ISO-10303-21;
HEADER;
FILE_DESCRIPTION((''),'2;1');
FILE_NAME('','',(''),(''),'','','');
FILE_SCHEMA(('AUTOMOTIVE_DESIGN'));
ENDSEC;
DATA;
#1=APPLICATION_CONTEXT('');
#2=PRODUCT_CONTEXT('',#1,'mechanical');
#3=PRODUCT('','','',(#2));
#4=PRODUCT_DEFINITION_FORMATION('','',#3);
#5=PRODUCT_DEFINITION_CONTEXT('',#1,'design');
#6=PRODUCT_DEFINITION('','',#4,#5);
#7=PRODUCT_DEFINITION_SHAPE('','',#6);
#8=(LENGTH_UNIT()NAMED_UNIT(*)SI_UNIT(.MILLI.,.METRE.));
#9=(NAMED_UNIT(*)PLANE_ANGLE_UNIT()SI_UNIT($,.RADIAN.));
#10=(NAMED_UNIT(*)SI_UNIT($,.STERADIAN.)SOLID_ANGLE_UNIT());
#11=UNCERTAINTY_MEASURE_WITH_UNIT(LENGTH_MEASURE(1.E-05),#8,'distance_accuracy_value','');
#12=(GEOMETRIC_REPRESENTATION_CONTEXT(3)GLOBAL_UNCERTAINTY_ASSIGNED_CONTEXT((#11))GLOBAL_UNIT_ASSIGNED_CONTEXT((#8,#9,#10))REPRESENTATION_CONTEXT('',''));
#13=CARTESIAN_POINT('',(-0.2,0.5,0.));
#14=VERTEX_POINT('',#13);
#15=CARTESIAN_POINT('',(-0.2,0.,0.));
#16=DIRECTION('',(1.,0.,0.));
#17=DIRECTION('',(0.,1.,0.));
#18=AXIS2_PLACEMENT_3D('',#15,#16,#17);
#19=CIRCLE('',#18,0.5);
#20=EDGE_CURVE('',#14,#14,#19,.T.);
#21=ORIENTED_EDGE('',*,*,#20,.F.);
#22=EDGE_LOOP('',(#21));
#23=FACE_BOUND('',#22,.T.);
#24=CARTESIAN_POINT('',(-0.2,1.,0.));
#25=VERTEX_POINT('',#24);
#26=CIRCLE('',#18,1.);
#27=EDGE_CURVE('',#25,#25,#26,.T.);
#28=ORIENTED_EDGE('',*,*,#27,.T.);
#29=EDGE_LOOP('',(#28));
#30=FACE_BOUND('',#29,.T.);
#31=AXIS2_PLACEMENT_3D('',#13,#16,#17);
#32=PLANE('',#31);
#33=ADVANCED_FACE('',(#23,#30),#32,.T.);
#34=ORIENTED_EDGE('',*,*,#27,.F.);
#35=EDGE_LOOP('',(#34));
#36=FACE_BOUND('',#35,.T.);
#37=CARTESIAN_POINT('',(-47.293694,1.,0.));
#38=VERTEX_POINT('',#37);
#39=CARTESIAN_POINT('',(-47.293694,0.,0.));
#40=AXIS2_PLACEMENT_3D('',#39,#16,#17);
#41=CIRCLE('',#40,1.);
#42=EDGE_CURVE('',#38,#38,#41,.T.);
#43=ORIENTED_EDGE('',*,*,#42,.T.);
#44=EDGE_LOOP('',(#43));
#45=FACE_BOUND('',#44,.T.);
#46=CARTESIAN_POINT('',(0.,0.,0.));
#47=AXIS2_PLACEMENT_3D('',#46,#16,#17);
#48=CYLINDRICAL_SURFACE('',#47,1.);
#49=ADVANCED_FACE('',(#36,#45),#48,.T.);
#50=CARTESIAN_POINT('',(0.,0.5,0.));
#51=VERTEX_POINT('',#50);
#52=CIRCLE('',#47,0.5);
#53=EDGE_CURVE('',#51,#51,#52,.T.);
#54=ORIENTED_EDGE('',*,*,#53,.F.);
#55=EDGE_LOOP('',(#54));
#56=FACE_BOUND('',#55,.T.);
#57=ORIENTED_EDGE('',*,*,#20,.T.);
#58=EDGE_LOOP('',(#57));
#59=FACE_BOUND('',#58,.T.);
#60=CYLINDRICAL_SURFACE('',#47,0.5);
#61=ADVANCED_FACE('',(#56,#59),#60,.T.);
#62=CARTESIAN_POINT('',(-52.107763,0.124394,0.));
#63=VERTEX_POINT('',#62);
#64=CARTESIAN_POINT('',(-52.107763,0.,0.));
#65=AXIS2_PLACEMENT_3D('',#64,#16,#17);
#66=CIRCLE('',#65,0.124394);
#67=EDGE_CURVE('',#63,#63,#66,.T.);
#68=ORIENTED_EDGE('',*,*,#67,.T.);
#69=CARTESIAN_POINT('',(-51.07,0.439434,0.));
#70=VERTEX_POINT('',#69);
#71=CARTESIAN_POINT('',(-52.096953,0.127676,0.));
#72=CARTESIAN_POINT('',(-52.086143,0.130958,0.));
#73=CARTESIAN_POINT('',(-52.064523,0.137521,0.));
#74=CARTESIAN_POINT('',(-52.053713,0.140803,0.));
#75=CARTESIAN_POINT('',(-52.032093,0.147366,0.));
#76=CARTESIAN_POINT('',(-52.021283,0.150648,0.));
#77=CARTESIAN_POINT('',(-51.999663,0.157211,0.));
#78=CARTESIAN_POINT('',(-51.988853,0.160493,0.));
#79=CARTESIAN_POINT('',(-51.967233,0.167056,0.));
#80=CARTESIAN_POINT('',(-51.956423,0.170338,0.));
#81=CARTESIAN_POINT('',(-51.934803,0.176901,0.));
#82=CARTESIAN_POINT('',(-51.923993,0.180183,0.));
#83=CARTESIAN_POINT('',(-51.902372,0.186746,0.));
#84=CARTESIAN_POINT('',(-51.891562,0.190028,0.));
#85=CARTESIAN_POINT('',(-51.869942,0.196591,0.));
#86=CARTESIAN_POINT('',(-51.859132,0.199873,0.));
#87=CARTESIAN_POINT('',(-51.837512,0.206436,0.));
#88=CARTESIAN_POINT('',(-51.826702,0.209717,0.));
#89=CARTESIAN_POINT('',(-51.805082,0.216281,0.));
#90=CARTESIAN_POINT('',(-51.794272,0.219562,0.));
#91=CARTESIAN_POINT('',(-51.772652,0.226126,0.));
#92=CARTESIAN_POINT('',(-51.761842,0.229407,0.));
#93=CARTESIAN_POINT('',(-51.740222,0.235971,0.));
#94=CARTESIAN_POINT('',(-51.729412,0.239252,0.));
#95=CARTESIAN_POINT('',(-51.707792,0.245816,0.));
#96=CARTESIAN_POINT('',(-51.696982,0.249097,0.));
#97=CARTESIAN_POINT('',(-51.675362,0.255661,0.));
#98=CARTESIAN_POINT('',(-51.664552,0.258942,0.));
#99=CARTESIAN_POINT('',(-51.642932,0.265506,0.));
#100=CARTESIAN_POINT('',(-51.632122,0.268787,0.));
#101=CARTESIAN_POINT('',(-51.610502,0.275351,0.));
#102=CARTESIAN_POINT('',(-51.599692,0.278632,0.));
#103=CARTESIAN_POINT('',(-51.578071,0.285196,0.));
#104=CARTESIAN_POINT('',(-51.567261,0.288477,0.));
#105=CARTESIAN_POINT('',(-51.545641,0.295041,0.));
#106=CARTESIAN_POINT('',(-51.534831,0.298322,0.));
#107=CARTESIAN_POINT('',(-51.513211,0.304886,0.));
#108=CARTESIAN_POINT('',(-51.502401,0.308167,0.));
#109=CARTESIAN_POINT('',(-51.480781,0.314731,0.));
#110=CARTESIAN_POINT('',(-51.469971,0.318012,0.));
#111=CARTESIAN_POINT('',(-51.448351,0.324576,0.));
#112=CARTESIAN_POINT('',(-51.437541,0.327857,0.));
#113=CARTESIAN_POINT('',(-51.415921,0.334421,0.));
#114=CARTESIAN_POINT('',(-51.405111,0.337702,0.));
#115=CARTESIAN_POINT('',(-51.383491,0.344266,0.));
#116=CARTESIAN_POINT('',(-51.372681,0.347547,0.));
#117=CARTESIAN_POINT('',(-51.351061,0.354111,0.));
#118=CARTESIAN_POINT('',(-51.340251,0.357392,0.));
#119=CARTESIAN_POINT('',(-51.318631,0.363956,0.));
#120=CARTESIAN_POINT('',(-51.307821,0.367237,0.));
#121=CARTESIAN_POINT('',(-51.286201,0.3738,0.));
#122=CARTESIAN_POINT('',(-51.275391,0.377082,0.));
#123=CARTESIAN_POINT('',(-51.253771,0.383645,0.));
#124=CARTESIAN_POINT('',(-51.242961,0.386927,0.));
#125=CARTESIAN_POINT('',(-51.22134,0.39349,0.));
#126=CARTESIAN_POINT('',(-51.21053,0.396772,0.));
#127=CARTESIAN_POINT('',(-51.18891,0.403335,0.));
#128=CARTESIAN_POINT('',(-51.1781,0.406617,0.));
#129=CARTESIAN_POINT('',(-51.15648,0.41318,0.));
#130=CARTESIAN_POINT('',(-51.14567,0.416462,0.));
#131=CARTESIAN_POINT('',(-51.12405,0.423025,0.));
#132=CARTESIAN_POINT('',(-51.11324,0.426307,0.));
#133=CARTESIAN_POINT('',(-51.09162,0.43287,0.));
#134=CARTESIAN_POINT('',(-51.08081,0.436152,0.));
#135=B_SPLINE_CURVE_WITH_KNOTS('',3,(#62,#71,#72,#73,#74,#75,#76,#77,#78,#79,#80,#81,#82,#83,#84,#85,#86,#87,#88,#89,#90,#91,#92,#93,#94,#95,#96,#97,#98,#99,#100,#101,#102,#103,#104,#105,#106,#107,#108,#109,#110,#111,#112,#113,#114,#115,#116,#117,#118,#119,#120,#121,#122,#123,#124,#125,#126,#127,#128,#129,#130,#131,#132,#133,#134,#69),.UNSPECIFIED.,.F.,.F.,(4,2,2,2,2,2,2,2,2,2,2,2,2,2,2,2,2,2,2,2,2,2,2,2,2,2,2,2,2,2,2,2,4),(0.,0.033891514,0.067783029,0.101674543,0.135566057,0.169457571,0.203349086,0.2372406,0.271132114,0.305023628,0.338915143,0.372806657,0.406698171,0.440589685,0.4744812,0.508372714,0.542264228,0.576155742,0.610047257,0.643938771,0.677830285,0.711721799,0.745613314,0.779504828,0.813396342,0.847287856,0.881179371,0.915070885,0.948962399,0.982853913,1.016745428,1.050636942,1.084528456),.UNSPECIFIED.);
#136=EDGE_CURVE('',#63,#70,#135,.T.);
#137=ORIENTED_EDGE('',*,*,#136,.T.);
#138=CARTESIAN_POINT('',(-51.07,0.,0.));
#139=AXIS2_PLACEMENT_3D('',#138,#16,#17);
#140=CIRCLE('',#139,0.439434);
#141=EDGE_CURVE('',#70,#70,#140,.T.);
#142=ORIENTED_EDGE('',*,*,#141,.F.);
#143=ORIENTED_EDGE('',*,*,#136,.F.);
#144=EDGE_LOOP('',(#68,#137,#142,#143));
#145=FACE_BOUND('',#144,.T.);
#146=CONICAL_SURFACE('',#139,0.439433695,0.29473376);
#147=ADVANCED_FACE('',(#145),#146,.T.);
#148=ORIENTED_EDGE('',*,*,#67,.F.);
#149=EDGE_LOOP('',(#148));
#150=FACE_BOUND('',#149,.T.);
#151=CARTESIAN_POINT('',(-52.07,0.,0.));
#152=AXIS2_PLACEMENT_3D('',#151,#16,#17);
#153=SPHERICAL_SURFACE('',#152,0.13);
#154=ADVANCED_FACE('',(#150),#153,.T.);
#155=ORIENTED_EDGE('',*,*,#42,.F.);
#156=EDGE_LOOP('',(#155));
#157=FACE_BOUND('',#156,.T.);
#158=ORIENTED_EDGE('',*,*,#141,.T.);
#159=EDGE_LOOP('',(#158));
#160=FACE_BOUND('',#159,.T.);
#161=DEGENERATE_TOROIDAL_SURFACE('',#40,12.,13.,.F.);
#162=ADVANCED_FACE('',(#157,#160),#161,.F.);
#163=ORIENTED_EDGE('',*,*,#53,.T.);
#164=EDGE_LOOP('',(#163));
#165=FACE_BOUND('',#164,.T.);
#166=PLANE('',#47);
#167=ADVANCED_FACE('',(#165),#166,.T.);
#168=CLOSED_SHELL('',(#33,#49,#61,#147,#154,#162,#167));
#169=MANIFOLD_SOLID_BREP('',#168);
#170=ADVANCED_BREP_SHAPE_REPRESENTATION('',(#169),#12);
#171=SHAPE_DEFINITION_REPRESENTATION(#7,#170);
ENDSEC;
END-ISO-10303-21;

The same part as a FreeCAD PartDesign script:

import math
import FreeCAD as App
import Part
import Sketcher
from FreeCAD import Vector
Q = App.Units.Quantity

doc = App.newDocument("Part")
body = doc.addObject("PartDesign::Body", "Body")

# Sketch on XY plane
sketch1 = body.newObject("Sketcher::SketchObject", "Sketch")
sketch1.AttachmentSupport = (doc.getObject("XY_Plane"), [""])
sketch1.MapMode = "FlatFace"
sketch1.addGeometry(Part.LineSegment(Vector(0, 0, 0), Vector(0, 0.5, 0)), False)
sketch1.addGeometry(Part.LineSegment(Vector(0, 0.5, 0), Vector(-0.2, 0.5, 0)), False)
sketch1.addGeometry(Part.LineSegment(Vector(-0.2, 0.5, 0), Vector(-0.2, 1, 0)), False)
sketch1.addGeometry(Part.LineSegment(Vector(-0.2, 1, 0), Vector(-47.29, 1, 0)), False)
sketch1.addGeometry(Part.ArcOfCircle(Part.Circle(Vector(-47.29, -12, 0), Vector(0, 0, 1), 13), math.radians(90), math.radians(106.89)), False)
sketch1.addGeometry(Part.LineSegment(Vector(-51.07, 0.44, 0), Vector(-52.11, 0.12, 0)), False)
sketch1.addGeometry(Part.ArcOfCircle(Part.Circle(Vector(-52.07, 0, 0), Vector(0, 0, 1), 0.13), math.radians(107), math.radians(180)), False)
sketch1.addGeometry(Part.LineSegment(Vector(-52.2, 0, 0), Vector(0, 0, 0)), False)
sketch1.addConstraint(Sketcher.Constraint("Coincident", 0, 2, 1, 1))
sketch1.addConstraint(Sketcher.Constraint("Coincident", 1, 2, 2, 1))
sketch1.addConstraint(Sketcher.Constraint("Coincident", 2, 2, 3, 1))
sketch1.addConstraint(Sketcher.Constraint("Tangent", 3, 2, 4, 1))
sketch1.addConstraint(Sketcher.Constraint("Tangent", 4, 2, 5, 1))
sketch1.addConstraint(Sketcher.Constraint("Tangent", 5, 2, 6, 1))
sketch1.addConstraint(Sketcher.Constraint("Coincident", 6, 2, 7, 1))
sketch1.addConstraint(Sketcher.Constraint("Coincident", 7, 2, 0, 1))
sketch1.addConstraint(Sketcher.Constraint("Vertical", 0))
sketch1.addConstraint(Sketcher.Constraint("Horizontal", 1))
sketch1.addConstraint(Sketcher.Constraint("Vertical", 2))
sketch1.addConstraint(Sketcher.Constraint("Horizontal", 3))
sketch1.addConstraint(Sketcher.Constraint("Horizontal", 7))
sketch1.addConstraint(Sketcher.Constraint("Coincident", 7, 2, -1, 1))
sketch1.addConstraint(Sketcher.Constraint("PointOnObject", 6, 3, -1))
sketch1.addConstraint(Sketcher.Constraint("Equal", 0, 2))
sketch1.addConstraint(Sketcher.Constraint("Radius", 4, Q("13 mm")))
sketch1.addConstraint(Sketcher.Constraint("Radius", 6, Q("0.13 mm")))
sketch1.addConstraint(Sketcher.Constraint("DistanceX", 1, 2, 1, 1, Q("0.2 mm")))
sketch1.addConstraint(Sketcher.Constraint("DistanceX", 7, 1, 7, 2, Q("52.2 mm")))
sketch1.addConstraint(Sketcher.Constraint("DistanceY", 0, 1, 0, 2, Q("0.5 mm")))
sketch1.addConstraint(Sketcher.Constraint("DistanceX", 6, 3, 4, 2, Q("1 mm")))
revolution = body.newObject("PartDesign::Revolution", "Revolution")
revolution.Profile = sketch1
revolution.ReferenceAxis = (sketch1, ["H_Axis"])
revolution.Angle = 360

doc.recompute()
